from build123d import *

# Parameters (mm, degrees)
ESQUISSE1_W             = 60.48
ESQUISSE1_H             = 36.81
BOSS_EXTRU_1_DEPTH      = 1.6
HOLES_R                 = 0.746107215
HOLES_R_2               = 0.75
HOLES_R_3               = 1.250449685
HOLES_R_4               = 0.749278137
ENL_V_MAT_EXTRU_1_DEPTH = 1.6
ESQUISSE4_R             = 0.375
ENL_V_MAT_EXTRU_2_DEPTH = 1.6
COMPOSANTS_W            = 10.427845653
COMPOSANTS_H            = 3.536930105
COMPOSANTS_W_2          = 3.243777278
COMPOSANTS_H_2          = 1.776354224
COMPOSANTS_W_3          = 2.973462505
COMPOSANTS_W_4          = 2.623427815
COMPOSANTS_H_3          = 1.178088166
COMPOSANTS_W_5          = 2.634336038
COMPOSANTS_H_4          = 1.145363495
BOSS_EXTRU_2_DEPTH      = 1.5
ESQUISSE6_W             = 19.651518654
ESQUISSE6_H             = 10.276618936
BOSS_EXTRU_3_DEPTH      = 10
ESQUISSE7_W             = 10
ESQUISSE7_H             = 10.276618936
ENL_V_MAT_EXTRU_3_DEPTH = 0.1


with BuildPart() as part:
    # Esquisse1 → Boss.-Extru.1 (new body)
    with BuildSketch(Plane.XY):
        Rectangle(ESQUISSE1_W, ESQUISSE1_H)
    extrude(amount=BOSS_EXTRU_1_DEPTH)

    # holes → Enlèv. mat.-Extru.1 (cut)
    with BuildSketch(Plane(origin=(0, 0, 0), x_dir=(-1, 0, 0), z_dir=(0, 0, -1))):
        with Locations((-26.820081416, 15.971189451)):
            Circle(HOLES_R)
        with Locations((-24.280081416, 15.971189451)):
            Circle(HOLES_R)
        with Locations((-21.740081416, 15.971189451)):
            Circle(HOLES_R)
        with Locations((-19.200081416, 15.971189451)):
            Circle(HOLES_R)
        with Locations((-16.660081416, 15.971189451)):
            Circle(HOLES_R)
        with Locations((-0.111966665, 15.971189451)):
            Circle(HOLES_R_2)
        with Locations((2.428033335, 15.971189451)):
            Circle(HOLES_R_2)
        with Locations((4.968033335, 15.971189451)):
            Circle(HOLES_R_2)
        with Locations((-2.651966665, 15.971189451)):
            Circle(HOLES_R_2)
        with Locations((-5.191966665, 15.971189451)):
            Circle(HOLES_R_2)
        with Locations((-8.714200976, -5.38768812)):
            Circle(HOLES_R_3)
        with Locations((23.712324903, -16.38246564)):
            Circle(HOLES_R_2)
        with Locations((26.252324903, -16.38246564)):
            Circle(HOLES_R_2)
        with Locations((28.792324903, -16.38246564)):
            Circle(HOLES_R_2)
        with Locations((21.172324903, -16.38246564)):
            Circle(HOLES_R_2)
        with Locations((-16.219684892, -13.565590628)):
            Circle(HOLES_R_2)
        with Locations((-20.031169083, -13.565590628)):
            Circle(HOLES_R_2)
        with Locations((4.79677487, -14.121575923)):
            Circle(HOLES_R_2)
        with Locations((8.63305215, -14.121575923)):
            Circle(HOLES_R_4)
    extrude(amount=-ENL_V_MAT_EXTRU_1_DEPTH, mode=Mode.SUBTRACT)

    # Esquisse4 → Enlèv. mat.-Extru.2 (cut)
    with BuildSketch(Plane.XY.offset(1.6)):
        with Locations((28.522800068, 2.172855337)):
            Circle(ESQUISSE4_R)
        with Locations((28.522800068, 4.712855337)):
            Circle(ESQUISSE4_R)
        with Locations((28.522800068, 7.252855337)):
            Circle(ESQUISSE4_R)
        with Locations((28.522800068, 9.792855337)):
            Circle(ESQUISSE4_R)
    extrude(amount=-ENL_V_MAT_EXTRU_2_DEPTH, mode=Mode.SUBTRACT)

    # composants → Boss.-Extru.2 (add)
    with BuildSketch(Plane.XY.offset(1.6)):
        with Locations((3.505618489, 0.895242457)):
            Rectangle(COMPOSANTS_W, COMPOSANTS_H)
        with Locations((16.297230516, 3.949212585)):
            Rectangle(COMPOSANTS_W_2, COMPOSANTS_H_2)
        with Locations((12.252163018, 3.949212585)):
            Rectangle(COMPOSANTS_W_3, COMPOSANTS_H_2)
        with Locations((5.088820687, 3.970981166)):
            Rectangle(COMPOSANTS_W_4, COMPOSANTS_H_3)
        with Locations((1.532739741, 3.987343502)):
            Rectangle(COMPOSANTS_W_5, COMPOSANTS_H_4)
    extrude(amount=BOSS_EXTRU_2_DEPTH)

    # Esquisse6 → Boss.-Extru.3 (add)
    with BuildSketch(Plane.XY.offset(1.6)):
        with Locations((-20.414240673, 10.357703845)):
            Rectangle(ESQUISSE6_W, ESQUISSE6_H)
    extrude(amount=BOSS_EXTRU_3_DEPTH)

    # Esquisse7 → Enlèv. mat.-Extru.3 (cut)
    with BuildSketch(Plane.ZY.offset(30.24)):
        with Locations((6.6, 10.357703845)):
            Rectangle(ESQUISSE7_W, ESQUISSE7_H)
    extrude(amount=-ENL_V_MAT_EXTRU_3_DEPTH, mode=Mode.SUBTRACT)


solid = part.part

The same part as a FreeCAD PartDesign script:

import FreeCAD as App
import Part
import Sketcher
Q = App.Units.Quantity


def add_polygon(sketch, points):
    """Adds a closed chain of lines whose ends are joined by coincident constraints."""
    first, n = sketch.GeometryCount, len(points)
    for a, b in zip(points, points[1:] + points[:1]):
        sketch.addGeometry(Part.LineSegment(App.Vector(*a, 0), App.Vector(*b, 0)), False)
    for i in range(n):
        sketch.addConstraint(Sketcher.Constraint("Coincident", first + i, 2, first + (i + 1) % n, 1))

doc = App.newDocument("Part")
body = doc.addObject("PartDesign::Body", "Body")

# Sketch on XY plane
sketch1 = body.newObject("Sketcher::SketchObject", "Sketch")
sketch1.AttachmentSupport = (doc.getObject("XY_Plane"), [""])
sketch1.MapMode = "FlatFace"
add_polygon(sketch1, [(-30, 18), (-30, -18), (30, -18), (30, 18)])  # lines 0-3
sketch1.addConstraint([
    Sketcher.Constraint("Vertical", 0),
    Sketcher.Constraint("Horizontal", 1),
    Sketcher.Constraint("Vertical", 2),
    Sketcher.Constraint("Horizontal", 3),
    Sketcher.Constraint("Symmetric", 0, 2, 2, 2, -1, 1),
    Sketcher.Constraint("DistanceX", 1, 1, 1, 2, Q("60.48 mm")),
    Sketcher.Constraint("DistanceY", 0, 2, 0, 1, Q("36.81 mm")),
])
pad1 = body.newObject("PartDesign::Pad", "Pad")
pad1.Profile = sketch1
pad1.Length = 1.6

# Sketch on XY plane
sketch2 = body.newObject("Sketcher::SketchObject", "Sketch001")
sketch2.AttachmentSupport = (doc.getObject("XY_Plane"), [""])
sketch2.MapMode = "FlatFace"
sketch2.addGeometry([
    Part.Circle(App.Vector(26.8, 16, 0), App.Vector(0, 0, 1), 0.7),  # 0
    Part.Circle(App.Vector(24.3, 16, 0), App.Vector(0, 0, 1), 0.7),  # 1
    Part.Circle(App.Vector(21.7, 16, 0), App.Vector(0, 0, 1), 0.7),  # 2
    Part.Circle(App.Vector(19.2, 16, 0), App.Vector(0, 0, 1), 0.7),  # 3
    Part.Circle(App.Vector(16.7, 16, 0), App.Vector(0, 0, 1), 0.7),  # 4
    Part.Circle(App.Vector(0.1, 16, 0), App.Vector(0, 0, 1), 0.8),  # 5
    Part.Circle(App.Vector(-2.4, 16, 0), App.Vector(0, 0, 1), 0.8),  # 6
    Part.Circle(App.Vector(-5, 16, 0), App.Vector(0, 0, 1), 0.8),  # 7
    Part.Circle(App.Vector(2.7, 16, 0), App.Vector(0, 0, 1), 0.8),  # 8
    Part.Circle(App.Vector(5.2, 16, 0), App.Vector(0, 0, 1), 0.8),  # 9
    Part.Circle(App.Vector(8.7, -5.4, 0), App.Vector(0, 0, 1), 1.3),  # 10
    Part.Circle(App.Vector(-23.7, -16.4, 0), App.Vector(0, 0, 1), 0.8),  # 11
    Part.Circle(App.Vector(-26.3, -16.4, 0), App.Vector(0, 0, 1), 0.8),  # 12
    Part.Circle(App.Vector(-28.8, -16.4, 0), App.Vector(0, 0, 1), 0.8),  # 13
    Part.Circle(App.Vector(-21.2, -16.4, 0), App.Vector(0, 0, 1), 0.8),  # 14
    Part.Circle(App.Vector(16.2, -13.6, 0), App.Vector(0, 0, 1), 0.8),  # 15
    Part.Circle(App.Vector(20, -13.6, 0), App.Vector(0, 0, 1), 0.8),  # 16
    Part.Circle(App.Vector(-4.8, -14.1, 0), App.Vector(0, 0, 1), 0.8),  # 17
    Part.Circle(App.Vector(-8.6, -14.1, 0), App.Vector(0, 0, 1), 0.7),  # 18
], False)
sketch2.addConstraint([
    Sketcher.Constraint("Equal", 0, 1),
    Sketcher.Constraint("Equal", 1, 2),
    Sketcher.Constraint("Equal", 2, 3),
    Sketcher.Constraint("Equal", 3, 4),
    Sketcher.Constraint("Equal", 5, 6),
    Sketcher.Constraint("Equal", 6, 7),
    Sketcher.Constraint("Equal", 7, 8),
    Sketcher.Constraint("Equal", 8, 9),
    Sketcher.Constraint("Equal", 9, 11),
    Sketcher.Constraint("Equal", 11, 12),
    Sketcher.Constraint("Equal", 12, 13),
    Sketcher.Constraint("Equal", 13, 14),
    Sketcher.Constraint("Equal", 14, 15),
    Sketcher.Constraint("Equal", 15, 16),
    Sketcher.Constraint("Equal", 16, 17),
    Sketcher.Constraint("Horizontal", 0, 3, 1, 3),
    Sketcher.Constraint("Horizontal", 1, 3, 2, 3),
    Sketcher.Constraint("Horizontal", 2, 3, 3, 3),
    Sketcher.Constraint("Horizontal", 3, 3, 4, 3),
    Sketcher.Constraint("Horizontal", 4, 3, 5, 3),
    Sketcher.Constraint("Horizontal", 5, 3, 6, 3),
    Sketcher.Constraint("Horizontal", 6, 3, 7, 3),
    Sketcher.Constraint("Horizontal", 7, 3, 8, 3),
    Sketcher.Constraint("Horizontal", 8, 3, 9, 3),
    Sketcher.Constraint("Horizontal", 11, 3, 12, 3),
    Sketcher.Constraint("Horizontal", 12, 3, 13, 3),
    Sketcher.Constraint("Horizontal", 13, 3, 14, 3),
    Sketcher.Constraint("Horizontal", 15, 3, 16, 3),
    Sketcher.Constraint("Horizontal", 17, 3, 18, 3),
    Sketcher.Constraint("Diameter", 5, Q("1.5 mm")),
    Sketcher.Constraint("Diameter", 10, Q("2.500899 mm")),
    Sketcher.Constraint("DistanceX", 1, 3, 0, 3, Q("2.54 mm")),
    Sketcher.Constraint("DistanceX", 2, 3, 1, 3, Q("2.54 mm")),
    Sketcher.Constraint("DistanceX", 3, 3, 2, 3, Q("2.54 mm")),
    Sketcher.Constraint("DistanceX", 4, 3, 3, 3, Q("2.54 mm")),
    Sketcher.Constraint("DistanceX", 6, 3, 5, 3, Q("2.54 mm")),
    Sketcher.Constraint("DistanceX", 7, 3, 6, 3, Q("2.54 mm")),
    Sketcher.Constraint("DistanceX", 5, 3, 8, 3, Q("2.54 mm")),
    Sketcher.Constraint("DistanceX", 8, 3, 9, 3, Q("2.54 mm")),
    Sketcher.Constraint("DistanceX", 12, 3, 11, 3, Q("2.54 mm")),
    Sketcher.Constraint("DistanceX", 13, 3, 12, 3, Q("2.54 mm")),
    Sketcher.Constraint("DistanceX", 11, 3, 14, 3, Q("2.54 mm")),
    Sketcher.Constraint("Diameter", 0, Q("1.492214 mm")),
    Sketcher.Constraint("Diameter", 18, Q("1.498556 mm")),
    Sketcher.Constraint("DistanceX", -1, 1, 10, 3, Q("8.714201 mm")),
    Sketcher.Constraint("DistanceX", -1, 1, 0, 3, Q("26.820081 mm")),
    Sketcher.Constraint("DistanceY", -1, 1, 0, 3, Q("15.971189 mm")),
    Sketcher.Constraint("DistanceY", 10, 3, -1, 1, Q("5.387688 mm")),
    Sketcher.Constraint("DistanceY", 15, 3, -1, 1, Q("13.565591 mm")),
    Sketcher.Constraint("DistanceX", -1, 1, 16, 3, Q("20.031169 mm")),
    Sketcher.Constraint("DistanceX", 11, 3, 7, 3, Q("18.744292 mm")),
    Sketcher.Constraint("DistanceX", 14, 3, 17, 3, Q("16.37555 mm")),
    Sketcher.Constraint("DistanceY", 14, 3, 17, 3, Q("2.26089 mm")),
    Sketcher.Constraint("DistanceX", 17, 3, 15, 3, Q("21.01646 mm")),
    Sketcher.Constraint("DistanceX", -1, 1, 5, 3, Q("0.111967 mm")),
    Sketcher.Constraint("DistanceY", 11, 3, -1, 1, Q("16.382466 mm")),
    Sketcher.Constraint("DistanceX", 18, 3, -1, 1, Q("8.633052 mm")),
])
pocket1 = body.newObject("PartDesign::Pocket", "Pocket")
pocket1.Profile = sketch2
pocket1.Length = 1.6
pocket1.Reversed = True

# Sketch on XY plane
sketch3 = body.newObject("Sketcher::SketchObject", "Sketch002")
sketch3.AttachmentSupport = (doc.getObject("XY_Plane"), [""])
sketch3.MapMode = "FlatFace"
sketch3.AttachmentOffset = App.Placement(App.Vector(0, 0, 1.6), App.Rotation())
sketch3.addGeometry([
    Part.Circle(App.Vector(28.52, 2.17, 0), App.Vector(0, 0, 1), 0.38),
    Part.Circle(App.Vector(28.52, 4.71, 0), App.Vector(0, 0, 1), 0.38),
    Part.Circle(App.Vector(28.52, 7.25, 0), App.Vector(0, 0, 1), 0.38),
    Part.Circle(App.Vector(28.52, 9.79, 0), App.Vector(0, 0, 1), 0.38),
], False)
sketch3.addConstraint([
    Sketcher.Constraint("Equal", 0, 1),
    Sketcher.Constraint("Equal", 1, 2),
    Sketcher.Constraint("Equal", 2, 3),
    Sketcher.Constraint("Vertical", 0, 3, 1, 3),
    Sketcher.Constraint("Vertical", 1, 3, 2, 3),
    Sketcher.Constraint("Vertical", 2, 3, 3, 3),
    Sketcher.Constraint("Diameter", 0, Q("0.75 mm")),
    Sketcher.Constraint("DistanceY", 0, 3, 1, 3, Q("2.54 mm")),
    Sketcher.Constraint("DistanceY", 1, 3, 2, 3, Q("2.54 mm")),
    Sketcher.Constraint("DistanceY", 2, 3, 3, 3, Q("2.54 mm")),
    Sketcher.Constraint("DistanceX", -1, 1, 0, 3, Q("28.5228 mm")),
    Sketcher.Constraint("DistanceY", -1, 1, 0, 3, Q("2.172855 mm")),
])
pocket2 = body.newObject("PartDesign::Pocket", "Pocket001")
pocket2.Profile = sketch3
pocket2.Length = 1.6

# Sketch on XY plane
sketch4 = body.newObject("Sketcher::SketchObject", "Sketch003")
sketch4.AttachmentSupport = (doc.getObject("XY_Plane"), [""])
sketch4.MapMode = "FlatFace"
sketch4.AttachmentOffset = App.Placement(App.Vector(0, 0, 1.6), App.Rotation())
add_polygon(sketch4, [(-1.7, 2.7), (-1.7, -0.9), (8.7, -0.9), (8.7, 2.7)])  # lines 0-3
add_polygon(sketch4, [(14.7, 4.8), (14.7, 3.1), (17.9, 3.1), (17.9, 4.8)])  # lines 4-7
add_polygon(sketch4, [(10.8, 4.8), (10.8, 3.1), (13.7, 3.1), (13.7, 4.8)])  # lines 8-11
add_polygon(sketch4, [(3.8, 4.6), (3.8, 3.4), (6.4, 3.4), (6.4, 4.6)])  # lines 12-15
add_polygon(sketch4, [(0.2, 4.6), (0.2, 3.4), (2.8, 3.4), (2.8, 4.6)])  # lines 16-19
sketch4.addConstraint([
    Sketcher.Constraint("Vertical", 0),
    Sketcher.Constraint("Horizontal", 1),
    Sketcher.Constraint("Vertical", 2),
    Sketcher.Constraint("Horizontal", 3),
    Sketcher.Constraint("Vertical", 4),
    Sketcher.Constraint("Horizontal", 5),
    Sketcher.Constraint("Vertical", 6),
    Sketcher.Constraint("Horizontal", 7),
    Sketcher.Constraint("Vertical", 8),
    Sketcher.Constraint("Horizontal", 9),
    Sketcher.Constraint("Vertical", 10),
    Sketcher.Constraint("Horizontal", 11),
    Sketcher.Constraint("Vertical", 12),
    Sketcher.Constraint("Horizontal", 13),
    Sketcher.Constraint("Vertical", 14),
    Sketcher.Constraint("Horizontal", 15),
    Sketcher.Constraint("Vertical", 16),
    Sketcher.Constraint("Horizontal", 17),
    Sketcher.Constraint("Vertical", 18),
    Sketcher.Constraint("Horizontal", 19),
    Sketcher.Constraint("Horizontal", 5, 2, 8, 2),
    Sketcher.Constraint("Horizontal", 7, 2, 10, 2),
    Sketcher.Constraint("Horizontal", 15, 2, 18, 2),
    Sketcher.Constraint("DistanceY", 0, 2, 0, 1, Q("3.53693 mm")),
    Sketcher.Constraint("DistanceY", 12, 2, 12, 1, Q("1.178088 mm")),
    Sketcher.Constraint("DistanceX", 2, 2, 4, 2, Q("5.955801 mm")),
    Sketcher.Constraint("DistanceY", 8, 2, 12, 2, Q("0.320902 mm")),
    Sketcher.Constraint("DistanceX", 17, 2, 12, 2, Q("0.927199 mm")),
    Sketcher.Constraint("DistanceX", 1, 1, 1, 2, Q("10.427846 mm")),
    Sketcher.Constraint("DistanceX", 5, 1, 5, 2, Q("3.243777 mm")),
    Sketcher.Constraint("DistanceX", 9, 1, 9, 2, Q("2.973463 mm")),
    Sketcher.Constraint("DistanceX", 13, 1, 13, 2, Q("2.623428 mm")),
    Sketcher.Constraint("DistanceX", 17, 1, 17, 2, Q("2.634336 mm")),
    Sketcher.Constraint("DistanceY", 4, 2, 4, 1, Q("1.776354 mm")),
    Sketcher.Constraint("DistanceY", 16, 2, 16, 1, Q("1.145363 mm")),
    Sketcher.Constraint("DistanceX", -1, 1, 1, 2, Q("8.719541 mm")),
    Sketcher.Constraint("DistanceY", -1, 1, 6, 2, Q("4.83739 mm")),
    Sketcher.Constraint("DistanceX", -1, 1, 8, 2, Q("10.765432 mm")),
    Sketcher.Constraint("DistanceX", -1, 1, 16, 2, Q("0.215572 mm")),
    Sketcher.Constraint("DistanceY", 1, 2, 4, 2, Q("3.934258 mm")),
])
pad2 = body.newObject("PartDesign::Pad", "Pad001")
pad2.Profile = sketch4
pad2.Length = 1.5

# Sketch on XY plane
sketch5 = body.newObject("Sketcher::SketchObject", "Sketch004")
sketch5.AttachmentSupport = (doc.getObject("XY_Plane"), [""])
sketch5.MapMode = "FlatFace"
sketch5.AttachmentOffset = App.Placement(App.Vector(0, 0, 1.6), App.Rotation())
add_polygon(sketch5, [(-30, 15), (-30, 5), (-11, 5), (-11, 15)])  # lines 0-3
sketch5.addConstraint([
    Sketcher.Constraint("Vertical", 0),
    Sketcher.Constraint("Horizontal", 1),
    Sketcher.Constraint("Vertical", 2),
    Sketcher.Constraint("Horizontal", 3),
    Sketcher.Constraint("DistanceX", 0, 2, -1, 1, Q("30.24 mm")),
    Sketcher.Constraint("DistanceX", 1, 1, 1, 2, Q("19.651519 mm")),
    Sketcher.Constraint("DistanceY", 0, 2, 0, 1, Q("10.276619 mm")),
    Sketcher.Constraint("DistanceY", -1, 1, 0, 2, Q("5.219394 mm")),
])
pad3 = body.newObject("PartDesign::Pad", "Pad002")
pad3.Profile = sketch5
pad3.Length = 10

# Sketch on YZ plane
sketch6 = body.newObject("Sketcher::SketchObject", "Sketch005")
sketch6.AttachmentSupport = (doc.getObject("YZ_Plane"), [""])
sketch6.MapMode = "FlatFace"
sketch6.AttachmentOffset = App.Placement(App.Vector(0, 0, -30.24), App.Rotation())
add_polygon(sketch6, [(15, 2), (5, 2), (5, 12), (15, 12)])  # lines 0-3
sketch6.addConstraint([
    Sketcher.Constraint("Horizontal", 0),
    Sketcher.Constraint("Vertical", 1),
    Sketcher.Constraint("Horizontal", 2),
    Sketcher.Constraint("Vertical", 3),
    Sketcher.Constraint("DistanceY", 1, 1, 1, 2, Q("10 mm")),
    Sketcher.Constraint("DistanceY", -1, 1, 0, 2, Q("1.6 mm")),
    Sketcher.Constraint("DistanceX", 0, 2, 0, 1, Q("10.276619 mm")),
    Sketcher.Constraint("DistanceX", -1, 1, 0, 2, Q("5.219394 mm")),
])
pocket3 = body.newObject("PartDesign::Pocket", "Pocket002")
pocket3.Profile = sketch6
pocket3.Length = 0.1
pocket3.Reversed = True

doc.recompute()
